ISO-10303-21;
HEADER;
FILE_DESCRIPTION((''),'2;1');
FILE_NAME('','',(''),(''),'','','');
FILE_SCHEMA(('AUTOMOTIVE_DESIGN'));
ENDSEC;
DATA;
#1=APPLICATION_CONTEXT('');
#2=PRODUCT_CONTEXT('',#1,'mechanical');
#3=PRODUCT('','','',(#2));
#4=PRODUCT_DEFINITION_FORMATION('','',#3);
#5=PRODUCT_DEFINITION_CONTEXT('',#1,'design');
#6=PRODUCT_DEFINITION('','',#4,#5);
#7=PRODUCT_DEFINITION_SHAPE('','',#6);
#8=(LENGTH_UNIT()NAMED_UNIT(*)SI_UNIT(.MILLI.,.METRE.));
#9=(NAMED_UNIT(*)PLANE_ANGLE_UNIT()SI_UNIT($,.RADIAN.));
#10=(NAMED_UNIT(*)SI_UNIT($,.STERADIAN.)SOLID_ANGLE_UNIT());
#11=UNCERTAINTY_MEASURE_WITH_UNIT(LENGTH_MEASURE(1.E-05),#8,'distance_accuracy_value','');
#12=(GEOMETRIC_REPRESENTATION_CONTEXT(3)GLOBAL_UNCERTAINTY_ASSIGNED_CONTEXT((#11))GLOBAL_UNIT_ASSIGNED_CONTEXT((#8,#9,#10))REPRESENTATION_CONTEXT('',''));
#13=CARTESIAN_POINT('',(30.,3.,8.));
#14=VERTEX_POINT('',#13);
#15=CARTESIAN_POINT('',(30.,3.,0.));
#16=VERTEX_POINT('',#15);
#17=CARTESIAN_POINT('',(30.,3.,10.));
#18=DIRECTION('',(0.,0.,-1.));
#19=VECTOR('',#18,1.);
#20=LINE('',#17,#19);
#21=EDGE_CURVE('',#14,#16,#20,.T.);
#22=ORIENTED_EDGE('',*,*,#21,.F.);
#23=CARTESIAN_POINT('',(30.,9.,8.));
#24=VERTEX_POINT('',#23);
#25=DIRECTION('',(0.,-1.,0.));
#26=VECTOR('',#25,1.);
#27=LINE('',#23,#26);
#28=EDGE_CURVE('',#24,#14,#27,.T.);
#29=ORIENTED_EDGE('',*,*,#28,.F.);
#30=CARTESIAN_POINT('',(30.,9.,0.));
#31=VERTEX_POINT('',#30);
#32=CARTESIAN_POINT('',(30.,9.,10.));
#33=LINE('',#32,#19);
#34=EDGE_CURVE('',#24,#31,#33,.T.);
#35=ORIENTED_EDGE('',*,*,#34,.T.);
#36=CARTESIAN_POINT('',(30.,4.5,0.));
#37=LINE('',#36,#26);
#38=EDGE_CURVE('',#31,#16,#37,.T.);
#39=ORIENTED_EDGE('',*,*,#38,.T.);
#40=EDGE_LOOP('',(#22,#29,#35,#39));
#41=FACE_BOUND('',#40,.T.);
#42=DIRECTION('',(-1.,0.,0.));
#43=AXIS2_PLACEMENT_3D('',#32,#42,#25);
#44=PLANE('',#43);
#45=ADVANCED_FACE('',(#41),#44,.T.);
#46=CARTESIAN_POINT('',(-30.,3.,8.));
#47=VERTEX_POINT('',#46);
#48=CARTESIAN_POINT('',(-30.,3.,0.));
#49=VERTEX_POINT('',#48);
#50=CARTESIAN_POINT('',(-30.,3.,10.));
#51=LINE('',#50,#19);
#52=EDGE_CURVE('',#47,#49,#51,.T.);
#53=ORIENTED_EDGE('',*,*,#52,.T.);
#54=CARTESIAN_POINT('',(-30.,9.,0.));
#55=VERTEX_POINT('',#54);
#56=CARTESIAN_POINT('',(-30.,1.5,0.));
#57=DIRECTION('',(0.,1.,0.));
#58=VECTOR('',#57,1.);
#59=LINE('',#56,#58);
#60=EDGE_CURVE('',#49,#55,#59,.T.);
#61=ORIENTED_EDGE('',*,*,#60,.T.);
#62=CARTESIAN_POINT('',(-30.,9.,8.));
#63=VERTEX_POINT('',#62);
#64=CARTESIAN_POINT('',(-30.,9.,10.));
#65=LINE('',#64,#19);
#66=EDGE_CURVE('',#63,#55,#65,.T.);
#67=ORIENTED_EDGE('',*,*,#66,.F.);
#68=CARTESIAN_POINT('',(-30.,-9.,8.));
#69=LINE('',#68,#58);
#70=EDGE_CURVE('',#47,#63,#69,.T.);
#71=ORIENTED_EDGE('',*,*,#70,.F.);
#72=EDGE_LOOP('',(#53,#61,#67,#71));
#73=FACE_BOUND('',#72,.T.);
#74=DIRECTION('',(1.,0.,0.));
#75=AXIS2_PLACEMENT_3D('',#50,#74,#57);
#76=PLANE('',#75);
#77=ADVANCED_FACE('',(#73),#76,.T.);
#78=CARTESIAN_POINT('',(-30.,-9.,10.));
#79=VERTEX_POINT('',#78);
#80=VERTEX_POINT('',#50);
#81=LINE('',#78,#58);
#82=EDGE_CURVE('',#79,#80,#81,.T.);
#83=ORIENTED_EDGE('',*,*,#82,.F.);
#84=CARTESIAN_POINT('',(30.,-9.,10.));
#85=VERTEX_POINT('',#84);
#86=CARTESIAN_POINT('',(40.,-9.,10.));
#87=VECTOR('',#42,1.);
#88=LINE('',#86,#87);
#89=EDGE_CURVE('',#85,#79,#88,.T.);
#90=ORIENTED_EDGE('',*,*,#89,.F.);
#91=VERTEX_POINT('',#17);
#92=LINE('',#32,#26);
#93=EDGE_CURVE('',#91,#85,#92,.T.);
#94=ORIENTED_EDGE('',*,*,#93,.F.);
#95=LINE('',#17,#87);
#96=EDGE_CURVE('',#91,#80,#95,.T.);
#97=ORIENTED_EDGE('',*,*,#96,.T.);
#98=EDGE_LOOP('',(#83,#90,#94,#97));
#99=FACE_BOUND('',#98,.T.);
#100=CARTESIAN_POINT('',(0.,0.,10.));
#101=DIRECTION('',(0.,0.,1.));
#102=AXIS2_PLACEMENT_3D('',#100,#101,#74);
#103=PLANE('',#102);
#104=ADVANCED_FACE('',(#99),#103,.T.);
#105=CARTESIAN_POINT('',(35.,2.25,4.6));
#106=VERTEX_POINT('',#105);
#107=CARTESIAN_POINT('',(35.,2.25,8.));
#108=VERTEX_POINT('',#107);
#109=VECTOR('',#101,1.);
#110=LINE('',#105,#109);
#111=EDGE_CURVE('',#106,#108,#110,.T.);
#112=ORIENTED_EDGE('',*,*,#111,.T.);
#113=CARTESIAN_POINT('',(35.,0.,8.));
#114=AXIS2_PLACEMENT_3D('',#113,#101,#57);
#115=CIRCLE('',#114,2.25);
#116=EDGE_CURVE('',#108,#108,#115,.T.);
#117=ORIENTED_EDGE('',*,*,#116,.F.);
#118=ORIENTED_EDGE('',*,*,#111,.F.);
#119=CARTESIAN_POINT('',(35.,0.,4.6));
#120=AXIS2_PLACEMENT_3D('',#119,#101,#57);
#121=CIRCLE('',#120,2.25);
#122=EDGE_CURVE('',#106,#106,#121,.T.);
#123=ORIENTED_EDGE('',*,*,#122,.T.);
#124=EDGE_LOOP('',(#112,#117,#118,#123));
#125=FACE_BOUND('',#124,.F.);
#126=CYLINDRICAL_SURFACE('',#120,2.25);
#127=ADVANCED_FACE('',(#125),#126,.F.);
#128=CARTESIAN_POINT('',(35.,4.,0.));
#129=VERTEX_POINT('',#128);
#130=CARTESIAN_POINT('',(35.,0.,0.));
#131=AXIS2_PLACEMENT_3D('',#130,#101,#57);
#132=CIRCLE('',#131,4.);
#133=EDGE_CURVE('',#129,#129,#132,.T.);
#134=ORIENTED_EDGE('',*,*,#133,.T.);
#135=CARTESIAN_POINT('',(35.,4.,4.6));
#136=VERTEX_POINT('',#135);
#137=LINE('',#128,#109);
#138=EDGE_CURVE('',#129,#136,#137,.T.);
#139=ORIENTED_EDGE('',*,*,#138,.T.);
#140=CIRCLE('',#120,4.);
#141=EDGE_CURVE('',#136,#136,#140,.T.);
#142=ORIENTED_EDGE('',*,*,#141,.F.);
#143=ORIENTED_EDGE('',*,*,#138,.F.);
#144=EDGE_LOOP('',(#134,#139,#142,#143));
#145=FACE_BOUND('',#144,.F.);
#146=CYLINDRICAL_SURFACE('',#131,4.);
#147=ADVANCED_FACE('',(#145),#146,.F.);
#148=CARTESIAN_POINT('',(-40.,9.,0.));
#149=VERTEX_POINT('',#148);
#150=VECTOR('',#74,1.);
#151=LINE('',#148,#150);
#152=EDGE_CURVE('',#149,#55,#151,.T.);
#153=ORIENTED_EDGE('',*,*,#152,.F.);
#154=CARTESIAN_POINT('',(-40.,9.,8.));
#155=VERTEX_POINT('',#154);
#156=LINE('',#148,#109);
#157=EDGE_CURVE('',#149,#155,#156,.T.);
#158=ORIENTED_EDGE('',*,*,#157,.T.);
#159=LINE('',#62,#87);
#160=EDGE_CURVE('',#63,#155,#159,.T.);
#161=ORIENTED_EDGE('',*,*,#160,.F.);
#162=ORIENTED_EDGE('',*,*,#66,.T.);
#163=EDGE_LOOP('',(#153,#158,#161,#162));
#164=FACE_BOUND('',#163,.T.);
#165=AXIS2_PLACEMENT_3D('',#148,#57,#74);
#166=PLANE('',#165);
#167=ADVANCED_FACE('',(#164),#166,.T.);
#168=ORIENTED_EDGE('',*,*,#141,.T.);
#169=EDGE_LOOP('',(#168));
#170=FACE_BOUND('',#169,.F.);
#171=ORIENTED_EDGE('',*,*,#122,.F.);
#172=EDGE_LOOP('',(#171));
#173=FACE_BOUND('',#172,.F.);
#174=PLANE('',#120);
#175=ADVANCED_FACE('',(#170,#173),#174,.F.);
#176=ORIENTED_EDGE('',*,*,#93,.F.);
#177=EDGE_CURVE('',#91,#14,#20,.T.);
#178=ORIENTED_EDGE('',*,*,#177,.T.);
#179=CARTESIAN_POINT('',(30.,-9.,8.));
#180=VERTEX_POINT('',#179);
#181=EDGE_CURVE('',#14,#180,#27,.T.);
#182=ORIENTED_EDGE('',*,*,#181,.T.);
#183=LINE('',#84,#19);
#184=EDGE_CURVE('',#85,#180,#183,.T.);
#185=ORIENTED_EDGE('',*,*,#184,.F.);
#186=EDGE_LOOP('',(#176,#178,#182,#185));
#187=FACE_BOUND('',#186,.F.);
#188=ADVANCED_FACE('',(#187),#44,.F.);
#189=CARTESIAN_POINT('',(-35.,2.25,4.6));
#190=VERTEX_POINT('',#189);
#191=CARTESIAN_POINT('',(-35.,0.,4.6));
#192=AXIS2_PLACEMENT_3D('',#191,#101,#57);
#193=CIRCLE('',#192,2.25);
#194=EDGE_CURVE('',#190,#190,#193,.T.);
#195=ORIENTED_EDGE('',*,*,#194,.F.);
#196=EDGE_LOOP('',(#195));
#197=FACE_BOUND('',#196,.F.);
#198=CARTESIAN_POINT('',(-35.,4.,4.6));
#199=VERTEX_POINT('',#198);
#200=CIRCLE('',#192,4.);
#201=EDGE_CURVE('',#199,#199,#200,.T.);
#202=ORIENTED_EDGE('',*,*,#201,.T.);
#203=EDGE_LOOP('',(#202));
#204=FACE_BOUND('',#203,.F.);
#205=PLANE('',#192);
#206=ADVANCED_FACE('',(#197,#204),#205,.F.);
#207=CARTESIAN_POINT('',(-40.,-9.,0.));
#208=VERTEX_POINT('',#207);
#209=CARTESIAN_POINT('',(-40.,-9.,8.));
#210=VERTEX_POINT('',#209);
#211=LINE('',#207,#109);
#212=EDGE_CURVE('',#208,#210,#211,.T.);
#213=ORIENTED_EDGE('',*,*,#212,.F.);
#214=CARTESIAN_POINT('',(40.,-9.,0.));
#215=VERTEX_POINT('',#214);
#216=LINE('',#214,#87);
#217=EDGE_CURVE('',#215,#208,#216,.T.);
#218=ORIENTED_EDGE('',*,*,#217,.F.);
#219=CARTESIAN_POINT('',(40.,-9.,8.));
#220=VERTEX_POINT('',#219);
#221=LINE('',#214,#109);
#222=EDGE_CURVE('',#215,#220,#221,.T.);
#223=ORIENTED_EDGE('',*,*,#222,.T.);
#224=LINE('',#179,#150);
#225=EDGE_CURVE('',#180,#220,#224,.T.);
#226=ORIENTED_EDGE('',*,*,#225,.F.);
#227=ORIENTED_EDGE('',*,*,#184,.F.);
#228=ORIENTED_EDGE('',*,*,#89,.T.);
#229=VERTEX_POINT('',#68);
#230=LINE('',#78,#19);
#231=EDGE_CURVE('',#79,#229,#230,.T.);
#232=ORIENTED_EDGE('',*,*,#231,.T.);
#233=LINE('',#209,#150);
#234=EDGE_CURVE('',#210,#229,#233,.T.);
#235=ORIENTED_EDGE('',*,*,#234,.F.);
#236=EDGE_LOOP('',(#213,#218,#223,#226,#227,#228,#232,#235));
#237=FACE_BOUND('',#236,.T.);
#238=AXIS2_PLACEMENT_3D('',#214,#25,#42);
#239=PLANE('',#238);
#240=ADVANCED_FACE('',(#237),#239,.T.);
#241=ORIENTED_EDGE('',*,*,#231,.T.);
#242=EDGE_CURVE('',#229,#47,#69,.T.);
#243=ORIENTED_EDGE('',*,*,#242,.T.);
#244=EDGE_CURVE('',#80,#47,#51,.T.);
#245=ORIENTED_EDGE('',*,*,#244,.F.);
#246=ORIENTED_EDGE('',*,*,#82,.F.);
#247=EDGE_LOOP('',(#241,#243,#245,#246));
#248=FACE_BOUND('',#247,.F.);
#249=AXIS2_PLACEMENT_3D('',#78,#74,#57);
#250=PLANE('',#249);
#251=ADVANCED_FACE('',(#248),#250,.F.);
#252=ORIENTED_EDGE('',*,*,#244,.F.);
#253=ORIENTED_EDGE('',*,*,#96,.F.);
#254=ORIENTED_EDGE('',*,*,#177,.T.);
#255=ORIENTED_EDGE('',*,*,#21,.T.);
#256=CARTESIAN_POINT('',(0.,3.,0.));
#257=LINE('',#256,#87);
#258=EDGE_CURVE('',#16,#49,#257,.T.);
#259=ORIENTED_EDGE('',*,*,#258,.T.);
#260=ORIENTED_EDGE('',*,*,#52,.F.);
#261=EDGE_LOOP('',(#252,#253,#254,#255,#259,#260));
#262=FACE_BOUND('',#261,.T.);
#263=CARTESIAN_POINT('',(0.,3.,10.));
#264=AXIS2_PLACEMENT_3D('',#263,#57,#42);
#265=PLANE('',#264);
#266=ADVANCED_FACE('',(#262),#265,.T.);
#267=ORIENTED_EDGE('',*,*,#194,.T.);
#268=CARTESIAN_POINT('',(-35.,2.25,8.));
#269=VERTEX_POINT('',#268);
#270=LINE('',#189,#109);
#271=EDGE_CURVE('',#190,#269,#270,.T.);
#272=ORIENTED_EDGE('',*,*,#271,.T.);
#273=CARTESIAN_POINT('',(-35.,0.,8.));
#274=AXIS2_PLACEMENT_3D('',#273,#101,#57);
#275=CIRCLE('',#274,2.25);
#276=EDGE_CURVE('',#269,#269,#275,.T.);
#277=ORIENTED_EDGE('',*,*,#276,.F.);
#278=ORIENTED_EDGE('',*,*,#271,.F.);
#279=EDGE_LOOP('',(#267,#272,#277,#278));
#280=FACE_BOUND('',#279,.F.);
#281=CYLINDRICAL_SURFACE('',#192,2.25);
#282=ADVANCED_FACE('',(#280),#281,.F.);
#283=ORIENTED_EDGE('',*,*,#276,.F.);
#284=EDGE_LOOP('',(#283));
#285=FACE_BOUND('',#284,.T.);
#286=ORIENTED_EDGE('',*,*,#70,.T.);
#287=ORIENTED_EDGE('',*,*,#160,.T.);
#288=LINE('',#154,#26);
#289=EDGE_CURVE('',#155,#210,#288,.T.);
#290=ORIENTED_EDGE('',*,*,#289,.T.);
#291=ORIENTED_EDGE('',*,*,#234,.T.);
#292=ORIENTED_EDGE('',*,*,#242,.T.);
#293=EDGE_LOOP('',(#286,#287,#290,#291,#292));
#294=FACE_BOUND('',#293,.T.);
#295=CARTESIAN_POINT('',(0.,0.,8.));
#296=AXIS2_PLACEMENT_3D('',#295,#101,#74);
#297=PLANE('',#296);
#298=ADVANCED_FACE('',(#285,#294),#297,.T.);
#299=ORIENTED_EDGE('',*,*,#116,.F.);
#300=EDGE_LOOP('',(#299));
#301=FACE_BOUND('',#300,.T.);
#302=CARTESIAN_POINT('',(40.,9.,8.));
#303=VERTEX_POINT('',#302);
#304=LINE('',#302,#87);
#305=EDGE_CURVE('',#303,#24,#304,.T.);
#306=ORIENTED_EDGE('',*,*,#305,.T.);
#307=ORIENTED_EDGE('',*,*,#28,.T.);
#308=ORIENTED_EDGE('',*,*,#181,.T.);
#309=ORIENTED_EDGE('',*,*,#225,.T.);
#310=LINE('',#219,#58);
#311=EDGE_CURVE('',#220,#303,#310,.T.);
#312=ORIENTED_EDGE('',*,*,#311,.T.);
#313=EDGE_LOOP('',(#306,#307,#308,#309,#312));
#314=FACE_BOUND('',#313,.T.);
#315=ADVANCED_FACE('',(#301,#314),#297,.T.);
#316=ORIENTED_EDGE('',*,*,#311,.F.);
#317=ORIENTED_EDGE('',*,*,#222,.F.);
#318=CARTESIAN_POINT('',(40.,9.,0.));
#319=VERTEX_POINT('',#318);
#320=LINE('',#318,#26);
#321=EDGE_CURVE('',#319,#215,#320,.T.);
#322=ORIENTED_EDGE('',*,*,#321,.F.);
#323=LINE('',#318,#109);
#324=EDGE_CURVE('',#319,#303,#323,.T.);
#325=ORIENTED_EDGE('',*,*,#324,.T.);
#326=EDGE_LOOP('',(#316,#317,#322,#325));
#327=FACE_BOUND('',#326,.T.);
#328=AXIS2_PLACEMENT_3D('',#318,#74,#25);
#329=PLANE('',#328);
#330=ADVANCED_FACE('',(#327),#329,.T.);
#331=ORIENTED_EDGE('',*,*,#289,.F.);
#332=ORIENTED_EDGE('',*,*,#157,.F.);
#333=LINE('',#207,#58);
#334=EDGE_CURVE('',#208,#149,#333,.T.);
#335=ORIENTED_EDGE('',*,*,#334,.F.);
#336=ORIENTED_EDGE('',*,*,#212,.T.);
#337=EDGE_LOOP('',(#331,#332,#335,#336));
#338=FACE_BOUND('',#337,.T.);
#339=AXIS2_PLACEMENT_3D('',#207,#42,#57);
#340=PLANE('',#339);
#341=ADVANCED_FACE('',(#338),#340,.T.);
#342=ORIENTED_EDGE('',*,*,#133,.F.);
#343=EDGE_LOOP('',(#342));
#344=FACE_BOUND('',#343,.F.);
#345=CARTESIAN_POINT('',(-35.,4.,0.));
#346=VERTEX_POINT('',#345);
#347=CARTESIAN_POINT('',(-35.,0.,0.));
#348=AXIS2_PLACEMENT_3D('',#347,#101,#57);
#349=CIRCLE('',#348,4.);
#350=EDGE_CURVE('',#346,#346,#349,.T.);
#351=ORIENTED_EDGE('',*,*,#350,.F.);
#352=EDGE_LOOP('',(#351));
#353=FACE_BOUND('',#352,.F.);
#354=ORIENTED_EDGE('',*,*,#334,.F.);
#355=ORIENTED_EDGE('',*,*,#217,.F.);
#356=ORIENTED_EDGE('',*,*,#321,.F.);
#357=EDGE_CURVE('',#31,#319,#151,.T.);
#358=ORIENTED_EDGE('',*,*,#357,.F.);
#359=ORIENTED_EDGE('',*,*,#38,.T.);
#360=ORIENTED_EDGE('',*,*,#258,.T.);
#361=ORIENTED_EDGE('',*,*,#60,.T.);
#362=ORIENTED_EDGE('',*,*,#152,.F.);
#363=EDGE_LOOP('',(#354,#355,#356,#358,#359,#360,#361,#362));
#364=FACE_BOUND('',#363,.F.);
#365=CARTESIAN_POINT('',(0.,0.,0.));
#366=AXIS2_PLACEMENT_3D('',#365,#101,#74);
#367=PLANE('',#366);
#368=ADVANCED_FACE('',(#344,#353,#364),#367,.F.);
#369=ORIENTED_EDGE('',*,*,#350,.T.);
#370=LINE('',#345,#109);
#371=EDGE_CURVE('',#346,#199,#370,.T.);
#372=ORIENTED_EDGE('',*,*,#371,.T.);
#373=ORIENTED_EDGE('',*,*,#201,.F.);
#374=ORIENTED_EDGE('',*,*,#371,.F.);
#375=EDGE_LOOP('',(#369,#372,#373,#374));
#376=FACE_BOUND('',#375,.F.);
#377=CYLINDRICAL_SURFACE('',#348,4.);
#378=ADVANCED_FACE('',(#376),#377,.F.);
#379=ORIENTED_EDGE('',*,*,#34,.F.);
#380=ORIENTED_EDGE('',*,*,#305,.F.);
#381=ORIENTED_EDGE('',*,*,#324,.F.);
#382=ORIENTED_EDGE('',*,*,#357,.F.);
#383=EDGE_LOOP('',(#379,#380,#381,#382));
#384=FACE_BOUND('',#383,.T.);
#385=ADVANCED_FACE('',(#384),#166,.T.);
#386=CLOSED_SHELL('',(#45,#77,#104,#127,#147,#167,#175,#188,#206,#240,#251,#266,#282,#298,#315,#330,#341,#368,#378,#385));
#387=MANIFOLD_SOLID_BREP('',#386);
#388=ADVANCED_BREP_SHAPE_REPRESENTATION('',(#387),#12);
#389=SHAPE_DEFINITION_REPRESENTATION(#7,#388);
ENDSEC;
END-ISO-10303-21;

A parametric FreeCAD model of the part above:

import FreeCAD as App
import Part
import Sketcher

V = App.Vector

doc = App.newDocument("Part")
body = doc.addObject("PartDesign::Body", "Body")

sketch1 = body.newObject("Sketcher::SketchObject", "Sketch")
sketch1.AttachmentSupport = (doc.getObject("XY_Plane"), [""])
sketch1.MapMode = "FlatFace"
sketch1.addGeometry([
    Part.LineSegment(V(40, 9, 0), V(-40, 9, 0)),
    Part.LineSegment(V(-40, 9, 0), V(-40, -9, 0)),
    Part.LineSegment(V(-40, -9, 0), V(40, -9, 0)),
    Part.LineSegment(V(40, -9, 0), V(40, 9, 0)),
], False)
sketch1.addConstraint([
    Sketcher.Constraint("Coincident", 0, 2, 1, 1),
    Sketcher.Constraint("Coincident", 1, 2, 2, 1),
    Sketcher.Constraint("Coincident", 2, 2, 3, 1),
    Sketcher.Constraint("Coincident", 3, 2, 0, 1),
    Sketcher.Constraint("Horizontal", 0),
    Sketcher.Constraint("Vertical", 1),
    Sketcher.Constraint("Horizontal", 2),
    Sketcher.Constraint("Vertical", 3),
    Sketcher.Constraint("Symmetric", 0, 2, 2, 2, -1, 1),
    Sketcher.Constraint("DistanceX", 0, 2, 0, 1, 80.0),
    Sketcher.Constraint("DistanceY", 1, 2, 1, 1, 18.0),
])
pad1 = body.newObject("PartDesign::Pad", "Pad")
pad1.Profile = sketch1
pad1.Length = 10

sketch2 = body.newObject("Sketcher::SketchObject", "Sketch001")
sketch2.AttachmentSupport = (doc.getObject("XY_Plane"), [""])
sketch2.MapMode = "FlatFace"
sketch2.AttachmentOffset = App.Placement(V(0, 0, 10), App.Rotation())
sketch2.addGeometry([
    Part.LineSegment(V(-30, 3, 0), V(30, 3, 0)),
    Part.LineSegment(V(30, 3, 0), V(30, 9, 0)),
    Part.LineSegment(V(30, 9, 0), V(-30, 9, 0)),
    Part.LineSegment(V(-30, 9, 0), V(-30, 3, 0)),
], False)
sketch2.addConstraint([
    Sketcher.Constraint("Coincident", 0, 2, 1, 1),
    Sketcher.Constraint("Coincident", 1, 2, 2, 1),
    Sketcher.Constraint("Coincident", 2, 2, 3, 1),
    Sketcher.Constraint("Coincident", 3, 2, 0, 1),
    Sketcher.Constraint("Horizontal", 0),
    Sketcher.Constraint("Vertical", 1),
    Sketcher.Constraint("Horizontal", 2),
    Sketcher.Constraint("Vertical", 3),
    Sketcher.Constraint("DistanceX", 0, 1, 0, 2, 60.0),
    Sketcher.Constraint("DistanceY", 1, 1, 1, 2, 6.0),
    Sketcher.Constraint("DistanceX", -1, 1, 0, 2, 30.0),
    Sketcher.Constraint("DistanceY", -1, 1, 0, 2, 3.0),
])
pocket1 = body.newObject("PartDesign::Pocket", "Pocket")
pocket1.Profile = sketch2
pocket1.Type = "ThroughAll"

sketch3 = body.newObject("Sketcher::SketchObject", "Sketch002")
sketch3.AttachmentSupport = (doc.getObject("XY_Plane"), [""])
sketch3.MapMode = "FlatFace"
sketch3.AttachmentOffset = App.Placement(V(0, 0, 10), App.Rotation())
sketch3.addGeometry([
    Part.LineSegment(V(-30, -9, 0), V(-30, 9, 0)),
    Part.LineSegment(V(-30, 9, 0), V(-40, 9, 0)),
    Part.LineSegment(V(-40, 9, 0), V(-40, -9, 0)),
    Part.LineSegment(V(-40, -9, 0), V(-30, -9, 0)),
], False)
sketch3.addConstraint([
    Sketcher.Constraint("Coincident", 0, 2, 1, 1),
    Sketcher.Constraint("Coincident", 1, 2, 2, 1),
    Sketcher.Constraint("Coincident", 2, 2, 3, 1),
    Sketcher.Constraint("Coincident", 3, 2, 0, 1),
    Sketcher.Constraint("Vertical", 0),
    Sketcher.Constraint("Horizontal", 1),
    Sketcher.Constraint("Vertical", 2),
    Sketcher.Constraint("Horizontal", 3),
    Sketcher.Constraint("DistanceX", 1, 2, 1, 1, 10.0),
    Sketcher.Constraint("DistanceY", 0, 1, 0, 2, 18.0),
    Sketcher.Constraint("DistanceX", 0, 2, -1, 1, 30.0),
    Sketcher.Constraint("DistanceY", -1, 1, 0, 2, 9.0),
])
pocket2 = body.newObject("PartDesign::Pocket", "Pocket001")
pocket2.Profile = sketch3
pocket2.Length = 2

sketch4 = body.newObject("Sketcher::SketchObject", "Sketch003")
sketch4.AttachmentSupport = (doc.getObject("XY_Plane"), [""])
sketch4.MapMode = "FlatFace"
sketch4.AttachmentOffset = App.Placement(V(0, 0, 10), App.Rotation())
sketch4.addGeometry([
    Part.LineSegment(V(40, -9, 0), V(40, 9, 0)),
    Part.LineSegment(V(40, 9, 0), V(30, 9, 0)),
    Part.LineSegment(V(30, 9, 0), V(30, -9, 0)),
    Part.LineSegment(V(30, -9, 0), V(40, -9, 0)),
], False)
sketch4.addConstraint([
    Sketcher.Constraint("Coincident", 0, 2, 1, 1),
    Sketcher.Constraint("Coincident", 1, 2, 2, 1),
    Sketcher.Constraint("Coincident", 2, 2, 3, 1),
    Sketcher.Constraint("Coincident", 3, 2, 0, 1),
    Sketcher.Constraint("Vertical", 0),
    Sketcher.Constraint("Horizontal", 1),
    Sketcher.Constraint("Vertical", 2),
    Sketcher.Constraint("Horizontal", 3),
    Sketcher.Constraint("DistanceX", 1, 2, 1, 1, 10.0),
    Sketcher.Constraint("DistanceY", 0, 1, 0, 2, 18.0),
    Sketcher.Constraint("DistanceX", -1, 1, 0, 2, 40.0),
    Sketcher.Constraint("DistanceY", -1, 1, 0, 2, 9.0),
])
pocket3 = body.newObject("PartDesign::Pocket", "Pocket002")
pocket3.Profile = sketch4
pocket3.Length = 2

sketch5 = body.newObject("Sketcher::SketchObject", "Sketch004")
sketch5.AttachmentSupport = (doc.getObject("XY_Plane"), [""])
sketch5.MapMode = "FlatFace"
sketch5.addGeometry([
    Part.Circle(V(35, 0, 0), V(0, 0, 1), 2.2),
    Part.Circle(V(-35, 0, 0), V(0, 0, 1), 2.2),
], False)
sketch5.addConstraint([
    Sketcher.Constraint("Equal", 0, 1),
    Sketcher.Constraint("Symmetric", 0, 3, 1, 3, -1, 1),
    Sketcher.Constraint("PointOnObject", 0, 3, -1),
    Sketcher.Constraint("Diameter", 0, 4.5),
    Sketcher.Constraint("DistanceX", -1, 1, 0, 3, 35.0),
])
doc.recompute()
hole = body.newObject("PartDesign::Hole", "Hole")
hole.Profile = sketch5
hole.ThreadType = "None"
hole.Diameter = 4.5
hole.DepthType = "ThroughAll"
hole.HoleCutType = "Counterbore"
hole.HoleCutDiameter = 8
hole.HoleCutDepth = 4.6
hole.Reversed = True

doc.recompute()
